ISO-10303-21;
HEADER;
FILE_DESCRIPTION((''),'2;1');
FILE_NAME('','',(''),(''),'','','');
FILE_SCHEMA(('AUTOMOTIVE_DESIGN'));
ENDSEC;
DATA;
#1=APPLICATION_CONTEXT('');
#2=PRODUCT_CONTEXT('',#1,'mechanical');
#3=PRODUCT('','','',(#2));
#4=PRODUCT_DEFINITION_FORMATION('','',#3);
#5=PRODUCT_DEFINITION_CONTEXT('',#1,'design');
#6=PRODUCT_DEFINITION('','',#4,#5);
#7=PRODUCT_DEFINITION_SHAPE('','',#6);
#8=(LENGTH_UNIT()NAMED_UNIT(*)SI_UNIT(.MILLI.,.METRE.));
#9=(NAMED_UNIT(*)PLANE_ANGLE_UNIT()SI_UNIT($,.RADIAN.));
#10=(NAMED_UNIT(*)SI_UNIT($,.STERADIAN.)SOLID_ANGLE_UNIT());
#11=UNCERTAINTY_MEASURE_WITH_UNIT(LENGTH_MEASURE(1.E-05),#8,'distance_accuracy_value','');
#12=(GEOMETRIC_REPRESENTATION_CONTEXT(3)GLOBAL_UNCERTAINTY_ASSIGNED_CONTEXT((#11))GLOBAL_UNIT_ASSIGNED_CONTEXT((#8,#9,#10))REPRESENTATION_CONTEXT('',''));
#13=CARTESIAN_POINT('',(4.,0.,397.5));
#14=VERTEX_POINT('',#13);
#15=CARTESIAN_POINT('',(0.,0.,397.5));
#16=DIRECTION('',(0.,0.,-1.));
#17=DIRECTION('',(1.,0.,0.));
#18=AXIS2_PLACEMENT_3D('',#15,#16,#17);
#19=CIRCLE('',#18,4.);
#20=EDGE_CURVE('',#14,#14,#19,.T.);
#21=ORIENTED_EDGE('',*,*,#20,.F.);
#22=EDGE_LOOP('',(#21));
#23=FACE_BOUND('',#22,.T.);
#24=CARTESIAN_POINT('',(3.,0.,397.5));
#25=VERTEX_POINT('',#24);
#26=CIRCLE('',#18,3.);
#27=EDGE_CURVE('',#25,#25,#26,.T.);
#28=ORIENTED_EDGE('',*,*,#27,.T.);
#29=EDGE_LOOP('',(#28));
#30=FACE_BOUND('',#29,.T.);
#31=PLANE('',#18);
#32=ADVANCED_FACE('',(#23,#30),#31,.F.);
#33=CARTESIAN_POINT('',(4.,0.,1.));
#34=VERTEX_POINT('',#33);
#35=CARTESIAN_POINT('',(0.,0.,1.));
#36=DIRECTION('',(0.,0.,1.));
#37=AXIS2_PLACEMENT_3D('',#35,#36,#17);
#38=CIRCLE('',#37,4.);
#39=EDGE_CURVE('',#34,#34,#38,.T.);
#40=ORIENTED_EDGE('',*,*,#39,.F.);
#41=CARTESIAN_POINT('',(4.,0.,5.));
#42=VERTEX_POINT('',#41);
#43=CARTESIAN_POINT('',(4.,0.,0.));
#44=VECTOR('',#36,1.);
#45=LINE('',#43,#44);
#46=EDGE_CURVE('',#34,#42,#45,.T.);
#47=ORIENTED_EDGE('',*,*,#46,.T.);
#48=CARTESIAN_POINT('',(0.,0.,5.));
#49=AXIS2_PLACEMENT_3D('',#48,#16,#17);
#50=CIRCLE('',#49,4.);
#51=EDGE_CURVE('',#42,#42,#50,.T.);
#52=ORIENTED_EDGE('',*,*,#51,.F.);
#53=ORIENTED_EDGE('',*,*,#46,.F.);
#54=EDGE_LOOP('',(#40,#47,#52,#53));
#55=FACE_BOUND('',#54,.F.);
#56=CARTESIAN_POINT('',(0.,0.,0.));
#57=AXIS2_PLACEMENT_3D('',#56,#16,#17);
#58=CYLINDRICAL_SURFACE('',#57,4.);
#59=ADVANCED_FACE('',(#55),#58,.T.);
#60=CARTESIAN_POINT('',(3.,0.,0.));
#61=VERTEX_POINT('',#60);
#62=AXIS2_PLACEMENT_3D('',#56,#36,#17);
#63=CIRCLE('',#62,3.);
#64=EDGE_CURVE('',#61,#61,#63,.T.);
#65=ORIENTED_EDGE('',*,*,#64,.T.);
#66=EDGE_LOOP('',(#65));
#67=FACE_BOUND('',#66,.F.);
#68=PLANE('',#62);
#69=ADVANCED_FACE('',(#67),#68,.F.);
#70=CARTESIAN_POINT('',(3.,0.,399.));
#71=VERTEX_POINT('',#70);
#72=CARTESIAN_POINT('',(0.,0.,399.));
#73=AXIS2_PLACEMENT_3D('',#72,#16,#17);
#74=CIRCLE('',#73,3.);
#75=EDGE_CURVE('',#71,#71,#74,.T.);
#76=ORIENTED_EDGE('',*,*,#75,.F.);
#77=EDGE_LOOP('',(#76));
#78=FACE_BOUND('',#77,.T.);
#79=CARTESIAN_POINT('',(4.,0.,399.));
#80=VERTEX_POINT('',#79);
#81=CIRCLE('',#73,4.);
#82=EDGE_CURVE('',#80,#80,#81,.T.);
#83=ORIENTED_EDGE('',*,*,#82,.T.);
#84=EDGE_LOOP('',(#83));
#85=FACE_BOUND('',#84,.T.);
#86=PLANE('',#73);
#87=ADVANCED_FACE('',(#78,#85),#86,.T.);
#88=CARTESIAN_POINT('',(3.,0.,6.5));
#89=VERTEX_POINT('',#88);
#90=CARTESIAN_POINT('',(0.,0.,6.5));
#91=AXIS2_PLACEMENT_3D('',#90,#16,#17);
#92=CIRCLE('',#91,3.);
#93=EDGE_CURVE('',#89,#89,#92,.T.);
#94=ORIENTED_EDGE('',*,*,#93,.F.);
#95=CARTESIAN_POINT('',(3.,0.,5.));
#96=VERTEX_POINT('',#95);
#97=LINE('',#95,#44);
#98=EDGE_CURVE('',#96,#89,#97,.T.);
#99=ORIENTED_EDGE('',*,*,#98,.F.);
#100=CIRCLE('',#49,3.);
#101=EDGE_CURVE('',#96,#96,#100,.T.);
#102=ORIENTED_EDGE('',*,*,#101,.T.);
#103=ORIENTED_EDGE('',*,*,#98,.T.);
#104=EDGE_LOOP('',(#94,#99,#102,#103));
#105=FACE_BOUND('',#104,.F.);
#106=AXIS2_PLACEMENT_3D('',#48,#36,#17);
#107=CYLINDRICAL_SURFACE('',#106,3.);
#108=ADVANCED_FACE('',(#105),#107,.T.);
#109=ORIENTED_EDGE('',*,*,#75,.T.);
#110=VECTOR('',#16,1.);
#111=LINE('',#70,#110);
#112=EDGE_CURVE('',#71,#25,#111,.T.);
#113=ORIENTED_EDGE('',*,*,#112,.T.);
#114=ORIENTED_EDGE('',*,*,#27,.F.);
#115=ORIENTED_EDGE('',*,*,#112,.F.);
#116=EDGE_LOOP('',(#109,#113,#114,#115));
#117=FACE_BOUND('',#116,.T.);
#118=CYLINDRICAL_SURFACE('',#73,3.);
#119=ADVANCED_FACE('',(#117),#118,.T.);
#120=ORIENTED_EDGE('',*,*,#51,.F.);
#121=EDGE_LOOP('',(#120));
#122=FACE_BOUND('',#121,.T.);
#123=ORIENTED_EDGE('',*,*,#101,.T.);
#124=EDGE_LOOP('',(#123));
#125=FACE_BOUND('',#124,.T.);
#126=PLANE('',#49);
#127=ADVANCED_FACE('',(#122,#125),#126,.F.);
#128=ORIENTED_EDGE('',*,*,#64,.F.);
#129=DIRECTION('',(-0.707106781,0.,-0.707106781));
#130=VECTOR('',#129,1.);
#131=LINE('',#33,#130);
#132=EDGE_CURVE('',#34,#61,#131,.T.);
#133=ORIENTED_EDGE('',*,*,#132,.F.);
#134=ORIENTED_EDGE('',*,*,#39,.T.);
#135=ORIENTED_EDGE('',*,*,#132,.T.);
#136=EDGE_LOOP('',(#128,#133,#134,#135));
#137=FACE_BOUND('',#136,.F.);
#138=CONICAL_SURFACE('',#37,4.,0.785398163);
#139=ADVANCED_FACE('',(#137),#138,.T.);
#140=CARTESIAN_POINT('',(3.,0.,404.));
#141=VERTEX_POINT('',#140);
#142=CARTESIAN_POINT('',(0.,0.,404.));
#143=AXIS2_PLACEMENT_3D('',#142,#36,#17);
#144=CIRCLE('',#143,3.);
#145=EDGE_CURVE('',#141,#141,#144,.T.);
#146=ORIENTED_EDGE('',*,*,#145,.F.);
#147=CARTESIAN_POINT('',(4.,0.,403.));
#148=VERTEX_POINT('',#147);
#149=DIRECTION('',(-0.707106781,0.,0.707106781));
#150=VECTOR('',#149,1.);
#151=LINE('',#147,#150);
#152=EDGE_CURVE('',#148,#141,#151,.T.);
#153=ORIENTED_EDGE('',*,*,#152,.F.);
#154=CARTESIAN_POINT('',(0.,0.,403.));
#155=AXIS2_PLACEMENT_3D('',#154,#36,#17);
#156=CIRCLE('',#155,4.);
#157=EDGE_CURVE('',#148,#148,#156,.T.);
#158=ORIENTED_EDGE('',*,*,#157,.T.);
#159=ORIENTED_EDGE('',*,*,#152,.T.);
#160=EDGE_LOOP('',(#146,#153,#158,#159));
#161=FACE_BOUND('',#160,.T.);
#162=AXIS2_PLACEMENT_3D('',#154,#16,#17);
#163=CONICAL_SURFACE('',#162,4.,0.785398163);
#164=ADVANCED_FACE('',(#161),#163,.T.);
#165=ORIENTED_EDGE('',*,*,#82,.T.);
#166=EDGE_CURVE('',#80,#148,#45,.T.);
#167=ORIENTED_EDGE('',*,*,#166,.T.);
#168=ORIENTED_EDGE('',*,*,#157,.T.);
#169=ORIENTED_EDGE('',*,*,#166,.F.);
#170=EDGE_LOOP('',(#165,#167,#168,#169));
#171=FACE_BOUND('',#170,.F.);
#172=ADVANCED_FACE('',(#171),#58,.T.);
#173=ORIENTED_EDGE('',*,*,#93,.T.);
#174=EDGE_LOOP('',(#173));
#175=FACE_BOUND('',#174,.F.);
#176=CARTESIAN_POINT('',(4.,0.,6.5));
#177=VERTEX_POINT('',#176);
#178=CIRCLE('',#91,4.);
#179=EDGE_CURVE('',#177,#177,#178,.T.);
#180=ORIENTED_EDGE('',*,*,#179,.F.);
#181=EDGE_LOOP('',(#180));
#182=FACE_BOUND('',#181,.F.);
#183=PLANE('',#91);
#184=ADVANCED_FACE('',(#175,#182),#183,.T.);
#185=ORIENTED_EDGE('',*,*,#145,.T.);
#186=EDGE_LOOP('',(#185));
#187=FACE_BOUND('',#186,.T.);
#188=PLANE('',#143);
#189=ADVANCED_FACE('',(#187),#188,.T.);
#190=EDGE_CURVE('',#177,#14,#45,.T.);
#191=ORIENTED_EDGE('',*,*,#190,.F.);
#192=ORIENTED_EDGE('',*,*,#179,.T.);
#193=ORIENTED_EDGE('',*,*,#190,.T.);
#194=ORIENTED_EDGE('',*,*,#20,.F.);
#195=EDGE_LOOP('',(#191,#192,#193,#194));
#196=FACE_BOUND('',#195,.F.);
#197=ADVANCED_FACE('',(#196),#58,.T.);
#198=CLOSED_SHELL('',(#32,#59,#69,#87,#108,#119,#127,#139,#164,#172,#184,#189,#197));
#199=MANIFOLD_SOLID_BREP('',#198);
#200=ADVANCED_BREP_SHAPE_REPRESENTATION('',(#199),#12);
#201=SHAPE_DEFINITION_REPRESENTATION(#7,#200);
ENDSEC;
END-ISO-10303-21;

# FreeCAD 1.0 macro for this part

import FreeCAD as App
import Part
import Sketcher
Q = App.Units.Quantity


def edges_at(feature, points):
    """Names of the edges that pass closest to the given points."""
    edges = feature.Shape.Edges
    near = lambda p: min(range(len(edges)), key=lambda i: edges[i].distToShape(Part.Vertex(*p))[0])
    return sorted({f"Edge{near(p) + 1}" for p in points})

doc = App.newDocument("Part")
body = doc.addObject("PartDesign::Body", "Body")

# Sketch on XY plane
sketch1 = body.newObject("Sketcher::SketchObject", "Sketch")
sketch1.AttachmentSupport = (doc.getObject("XY_Plane"), [""])
sketch1.MapMode = "FlatFace"
sketch1.addGeometry(Part.Circle(App.Vector(0, 0, 0), App.Vector(0, 0, 1), 4), False)
sketch1.addConstraint(Sketcher.Constraint("Coincident", 0, 3, -1, 1))
sketch1.addConstraint(Sketcher.Constraint("Diameter", 0, Q("8 mm")))
pad1 = body.newObject("PartDesign::Pad", "Pad")
pad1.Profile = sketch1
pad1.Length = 404
doc.recompute()

chamfer = body.newObject("PartDesign::Chamfer", "Chamfer")
chamfer.Base = (pad1, edges_at(pad1, [(-4, 0, 404), (-4, 0, 0)]))
chamfer.Size = 1

# Sketch on XZ plane
sketch2 = body.newObject("Sketcher::SketchObject", "Sketch001")
sketch2.AttachmentSupport = (doc.getObject("XZ_Plane"), [""])
sketch2.MapMode = "FlatFace"
sketch2.addGeometry(Part.LineSegment(App.Vector(3, 6.5, 0), App.Vector(3, 5, 0)), False)
sketch2.addGeometry(Part.LineSegment(App.Vector(3, 5, 0), App.Vector(5.3, 5, 0)), False)
sketch2.addGeometry(Part.LineSegment(App.Vector(5.3, 5, 0), App.Vector(5.3, 6.5, 0)), False)
sketch2.addGeometry(Part.LineSegment(App.Vector(5.3, 6.5, 0), App.Vector(3, 6.5, 0)), False)
sketch2.addGeometry(Part.LineSegment(App.Vector(3, 399, 0), App.Vector(3, 397.5, 0)), False)
sketch2.addGeometry(Part.LineSegment(App.Vector(3, 397.5, 0), App.Vector(6.5, 397.5, 0)), False)
sketch2.addGeometry(Part.LineSegment(App.Vector(6.5, 397.5, 0), App.Vector(6.5, 399, 0)), False)
sketch2.addGeometry(Part.LineSegment(App.Vector(6.5, 399, 0), App.Vector(3, 399, 0)), False)
sketch2.addConstraint(Sketcher.Constraint("Coincident", 0, 2, 1, 1))
sketch2.addConstraint(Sketcher.Constraint("Coincident", 1, 2, 2, 1))
sketch2.addConstraint(Sketcher.Constraint("Coincident", 2, 2, 3, 1))
sketch2.addConstraint(Sketcher.Constraint("Coincident", 3, 2, 0, 1))
sketch2.addConstraint(Sketcher.Constraint("Coincident", 4, 2, 5, 1))
sketch2.addConstraint(Sketcher.Constraint("Coincident", 5, 2, 6, 1))
sketch2.addConstraint(Sketcher.Constraint("Coincident", 6, 2, 7, 1))
sketch2.addConstraint(Sketcher.Constraint("Coincident", 7, 2, 4, 1))
sketch2.addConstraint(Sketcher.Constraint("Vertical", 0))
sketch2.addConstraint(Sketcher.Constraint("Horizontal", 1))
sketch2.addConstraint(Sketcher.Constraint("Vertical", 2))
sketch2.addConstraint(Sketcher.Constraint("Horizontal", 3))
sketch2.addConstraint(Sketcher.Constraint("Vertical", 4))
sketch2.addConstraint(Sketcher.Constraint("Horizontal", 5))
sketch2.addConstraint(Sketcher.Constraint("Vertical", 6))
sketch2.addConstraint(Sketcher.Constraint("Horizontal", 7))
sketch2.addConstraint(Sketcher.Constraint("Vertical", 3, 2, 4, 2))
sketch2.addConstraint(Sketcher.Constraint("Equal", 2, 4))
sketch2.addConstraint(Sketcher.Constraint("DistanceX", -1, 1, 0, 2, Q("3 mm")))
sketch2.addConstraint(Sketcher.Constraint("DistanceX", 5, 1, 5, 2, Q("3.5 mm")))
sketch2.addConstraint(Sketcher.Constraint("DistanceY", 0, 2, 0, 1, Q("1.5 mm")))
sketch2.addConstraint(Sketcher.Constraint("DistanceY", -1, 1, 0, 2, Q("5 mm")))
sketch2.addConstraint(Sketcher.Constraint("DistanceY", -1, 1, 6, 2, Q("399 mm")))
sketch2.addConstraint(Sketcher.Constraint("DistanceX", 1, 1, 1, 2, Q("2.3414 mm")))
groove = body.newObject("PartDesign::Groove", "Groove")
groove.Profile = sketch2
groove.ReferenceAxis = (sketch2, ["V_Axis"])
groove.Angle = 360

doc.recompute()
